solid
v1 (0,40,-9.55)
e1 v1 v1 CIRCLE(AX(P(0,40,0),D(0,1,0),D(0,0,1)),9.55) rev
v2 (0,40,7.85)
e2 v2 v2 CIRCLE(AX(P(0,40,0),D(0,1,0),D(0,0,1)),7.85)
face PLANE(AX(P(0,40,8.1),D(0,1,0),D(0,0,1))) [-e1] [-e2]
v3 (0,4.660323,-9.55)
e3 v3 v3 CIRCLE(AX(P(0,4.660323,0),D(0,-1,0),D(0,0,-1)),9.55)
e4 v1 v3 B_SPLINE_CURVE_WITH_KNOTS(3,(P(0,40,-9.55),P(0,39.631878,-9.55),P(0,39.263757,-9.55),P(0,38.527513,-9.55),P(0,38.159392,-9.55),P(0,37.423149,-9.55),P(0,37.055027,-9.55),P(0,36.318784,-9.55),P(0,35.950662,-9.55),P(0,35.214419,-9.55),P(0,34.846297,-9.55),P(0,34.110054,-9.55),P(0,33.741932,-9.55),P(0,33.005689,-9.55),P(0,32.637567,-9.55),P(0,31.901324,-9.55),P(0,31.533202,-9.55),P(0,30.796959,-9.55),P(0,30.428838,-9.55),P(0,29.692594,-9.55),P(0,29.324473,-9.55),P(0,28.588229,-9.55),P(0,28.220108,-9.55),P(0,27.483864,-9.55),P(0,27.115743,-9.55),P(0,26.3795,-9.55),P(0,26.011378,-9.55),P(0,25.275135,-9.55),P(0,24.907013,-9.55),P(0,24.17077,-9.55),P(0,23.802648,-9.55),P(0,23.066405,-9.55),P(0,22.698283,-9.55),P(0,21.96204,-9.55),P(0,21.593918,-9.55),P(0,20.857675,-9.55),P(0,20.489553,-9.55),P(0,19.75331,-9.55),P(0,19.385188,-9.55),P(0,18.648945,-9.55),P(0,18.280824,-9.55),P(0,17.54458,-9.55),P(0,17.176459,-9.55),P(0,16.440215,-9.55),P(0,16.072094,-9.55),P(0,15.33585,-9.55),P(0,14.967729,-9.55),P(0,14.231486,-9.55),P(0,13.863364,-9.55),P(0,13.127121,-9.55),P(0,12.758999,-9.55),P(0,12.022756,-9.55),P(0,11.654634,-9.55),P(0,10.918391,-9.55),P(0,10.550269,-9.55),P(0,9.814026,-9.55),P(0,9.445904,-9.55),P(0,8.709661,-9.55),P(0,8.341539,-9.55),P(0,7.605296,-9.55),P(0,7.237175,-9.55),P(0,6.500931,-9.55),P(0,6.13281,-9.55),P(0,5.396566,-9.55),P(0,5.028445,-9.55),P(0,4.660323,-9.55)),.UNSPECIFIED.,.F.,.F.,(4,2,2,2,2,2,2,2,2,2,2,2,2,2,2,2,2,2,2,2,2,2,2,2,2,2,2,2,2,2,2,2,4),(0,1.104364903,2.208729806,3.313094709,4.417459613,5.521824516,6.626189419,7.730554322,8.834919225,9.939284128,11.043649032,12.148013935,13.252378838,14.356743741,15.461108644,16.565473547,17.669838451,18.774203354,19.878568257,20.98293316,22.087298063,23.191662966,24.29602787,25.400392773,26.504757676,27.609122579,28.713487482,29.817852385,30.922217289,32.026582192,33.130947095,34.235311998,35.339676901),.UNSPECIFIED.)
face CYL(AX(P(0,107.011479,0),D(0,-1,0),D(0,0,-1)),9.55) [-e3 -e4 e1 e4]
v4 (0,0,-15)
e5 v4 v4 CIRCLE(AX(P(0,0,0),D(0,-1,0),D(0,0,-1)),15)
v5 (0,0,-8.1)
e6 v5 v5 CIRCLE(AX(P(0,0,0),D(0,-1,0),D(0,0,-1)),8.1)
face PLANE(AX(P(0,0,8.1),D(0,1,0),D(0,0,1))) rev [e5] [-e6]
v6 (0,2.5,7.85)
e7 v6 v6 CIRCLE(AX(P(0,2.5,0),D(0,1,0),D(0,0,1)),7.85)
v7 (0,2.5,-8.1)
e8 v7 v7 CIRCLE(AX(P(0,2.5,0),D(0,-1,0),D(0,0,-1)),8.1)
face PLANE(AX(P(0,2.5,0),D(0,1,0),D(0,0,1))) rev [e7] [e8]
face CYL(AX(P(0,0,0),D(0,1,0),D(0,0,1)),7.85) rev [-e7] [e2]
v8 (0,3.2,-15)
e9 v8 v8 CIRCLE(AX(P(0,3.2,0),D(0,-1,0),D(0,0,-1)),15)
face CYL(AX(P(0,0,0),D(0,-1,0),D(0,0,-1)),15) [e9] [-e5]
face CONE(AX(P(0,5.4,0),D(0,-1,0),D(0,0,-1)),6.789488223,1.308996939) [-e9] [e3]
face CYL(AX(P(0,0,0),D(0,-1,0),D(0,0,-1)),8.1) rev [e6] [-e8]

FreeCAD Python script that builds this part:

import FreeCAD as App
import Part
import Sketcher
from FreeCAD import Vector
Q = App.Units.Quantity

doc = App.newDocument("Part")
params = doc.addObject("Spreadsheet::Sheet", "Params")
for row, (alias, value) in enumerate([
    ("sketch1_width", "3.2 mm"),
    ("sketch1_width2", "2.5 mm"),
    ("sketch1_width3", "2.9 mm"),
    ("sketch1_height", "6.9 mm"),
    ("sketch1_height2", "8.1 mm"),
    ("revolution_angle", "360 deg"),
    ("sketch2_diameter", "19.1 mm"),
    ("pad1_length", "37.5 mm"),
    ("sketch3_diameter", "15.7 mm"),
], start=1):
    params.set(f"A{row}", alias)
    params.set(f"B{row}", "=" + value)
    params.setAlias(f"B{row}", alias)

body = doc.addObject("PartDesign::Body", "Body")

# Sketch on YZ plane
sketch1 = body.newObject("Sketcher::SketchObject", "Sketch")
sketch1.AttachmentSupport = (doc.getObject("YZ_Plane"), [""])
sketch1.MapMode = "FlatFace"
sketch1.addGeometry([
    Part.LineSegment(Vector(3.2, 15, 0), Vector(0, 15, 0)),  # 0
    Part.LineSegment(Vector(0, 15, 0), Vector(0, 8.1, 0)),  # 1
    Part.LineSegment(Vector(0, 8.1, 0), Vector(2.5, 8.1, 0)),  # 2
    Part.LineSegment(Vector(2.5, 8.1, 0), Vector(2.5, 0, 0)),  # 3
    Part.LineSegment(Vector(2.5, 0, 0), Vector(5.4, 0, 0)),  # 4
    Part.LineSegment(Vector(5.4, 0, 0), Vector(5.4, 6.789488, 0)),  # 5
    Part.LineSegment(Vector(5.4, 6.789488, 0), Vector(3.2, 15, 0)),  # 6
], False)
sketch1.addConstraint([
    Sketcher.Constraint("Coincident", 0, 2, 1, 1),
    Sketcher.Constraint("Coincident", 1, 2, 2, 1),
    Sketcher.Constraint("Coincident", 2, 2, 3, 1),
    Sketcher.Constraint("Coincident", 3, 2, 4, 1),
    Sketcher.Constraint("Coincident", 4, 2, 5, 1),
    Sketcher.Constraint("Coincident", 5, 2, 6, 1),
    Sketcher.Constraint("Coincident", 6, 2, 0, 1),
    Sketcher.Constraint("Horizontal", 0),
    Sketcher.Constraint("Vertical", 1),
    Sketcher.Constraint("Horizontal", 2),
    Sketcher.Constraint("Vertical", 3),
    Sketcher.Constraint("Horizontal", 4),
    Sketcher.Constraint("Vertical", 5),
    Sketcher.Constraint("PointOnObject", 0, 2, -2),
    Sketcher.Constraint("PointOnObject", 3, 2, -1),
    Sketcher.Constraint("Angle", 6, Q("105 deg")),
    Sketcher.Constraint("DistanceX", 0, 2, 0, 1, 3.2),
    Sketcher.Constraint("DistanceX", 2, 1, 2, 2, 2.5),
    Sketcher.Constraint("DistanceX", 4, 1, 4, 2, 2.9),
    Sketcher.Constraint("DistanceY", 1, 2, 1, 1, 6.9),
    Sketcher.Constraint("DistanceY", 3, 2, 3, 1, 8.1),
])
sketch1.setExpression("Constraints[16]", "Params.sketch1_width")
sketch1.setExpression("Constraints[17]", "Params.sketch1_width2")
sketch1.setExpression("Constraints[18]", "Params.sketch1_width3")
sketch1.setExpression("Constraints[19]", "Params.sketch1_height")
sketch1.setExpression("Constraints[20]", "Params.sketch1_height2")
revolution = body.newObject("PartDesign::Revolution", "Revolution")
revolution.Profile = sketch1
revolution.ReferenceAxis = (sketch1, ["H_Axis"])
revolution.setExpression("Angle", "Params.revolution_angle")

# Sketch on XZ plane
sketch2 = body.newObject("Sketcher::SketchObject", "Sketch001")
sketch2.AttachmentSupport = (doc.getObject("XZ_Plane"), [""])
sketch2.MapMode = "FlatFace"
sketch2.AttachmentOffset = App.Placement(Vector(0, 0, -2.5), App.Rotation())
sketch2.addGeometry(Part.Circle(Vector(0, 0, 0), Vector(0, 0, 1), 9.55), False)
sketch2.addConstraint([
    Sketcher.Constraint("Coincident", 0, 3, -1, 1),
    Sketcher.Constraint("Diameter", 0, 19.1),
])
sketch2.setExpression("Constraints[1]", "Params.sketch2_diameter")
pad1 = body.newObject("PartDesign::Pad", "Pad")
pad1.Profile = sketch2
pad1.setExpression("Length", "Params.pad1_length")
pad1.Reversed = True

# Sketch on XZ plane
sketch3 = body.newObject("Sketcher::SketchObject", "Sketch002")
sketch3.AttachmentSupport = (doc.getObject("XZ_Plane"), [""])
sketch3.MapMode = "FlatFace"
sketch3.AttachmentOffset = App.Placement(Vector(0, 0, -40), App.Rotation())
sketch3.addGeometry(Part.Circle(Vector(0, 0, 0), Vector(0, 0, 1), 7.85), False)
sketch3.addConstraint([
    Sketcher.Constraint("Coincident", 0, 3, -1, 1),
    Sketcher.Constraint("Diameter", 0, 15.7),
])
sketch3.setExpression("Constraints[1]", "Params.sketch3_diameter")
pocket1 = body.newObject("PartDesign::Pocket", "Pocket")
pocket1.Profile = sketch3
pocket1.Type = "ThroughAll"
pocket1.Reversed = True

doc.recompute()
